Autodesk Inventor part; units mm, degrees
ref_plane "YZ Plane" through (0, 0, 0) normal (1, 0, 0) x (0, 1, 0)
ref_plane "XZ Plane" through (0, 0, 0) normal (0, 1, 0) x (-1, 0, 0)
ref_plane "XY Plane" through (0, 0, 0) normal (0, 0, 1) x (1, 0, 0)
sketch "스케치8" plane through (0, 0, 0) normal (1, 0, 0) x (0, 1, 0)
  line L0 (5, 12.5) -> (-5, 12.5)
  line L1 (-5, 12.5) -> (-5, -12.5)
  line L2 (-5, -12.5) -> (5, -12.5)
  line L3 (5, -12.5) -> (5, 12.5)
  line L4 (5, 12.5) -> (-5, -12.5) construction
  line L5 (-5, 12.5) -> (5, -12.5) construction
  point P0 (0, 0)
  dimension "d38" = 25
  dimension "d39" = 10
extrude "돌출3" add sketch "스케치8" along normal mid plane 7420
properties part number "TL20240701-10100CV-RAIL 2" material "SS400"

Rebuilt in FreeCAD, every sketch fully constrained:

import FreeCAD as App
import Part
import Sketcher


def add_polygon(sketch, points):
    """Adds a closed chain of lines whose ends are joined by coincident constraints."""
    first, n = sketch.GeometryCount, len(points)
    for a, b in zip(points, points[1:] + points[:1]):
        sketch.addGeometry(Part.LineSegment(App.Vector(*a, 0), App.Vector(*b, 0)), False)
    for i in range(n):
        sketch.addConstraint(Sketcher.Constraint("Coincident", first + i, 2, first + (i + 1) % n, 1))

doc = App.newDocument("Part")
params = doc.addObject("Spreadsheet::Sheet", "Params")
for row, (alias, value) in enumerate([
    ("sketch1_width", "10 mm"),
    ("sketch1_height", "25 mm"),
    ("pad1_length", "7420 mm"),
], start=1):
    params.set(f"A{row}", alias)
    params.set(f"B{row}", "=" + value)
    params.setAlias(f"B{row}", alias)

body = doc.addObject("PartDesign::Body", "Body")

# Sketch on YZ plane
sketch1 = doc.addObject("Sketcher::SketchObject", "Sketch")
body.addObject(sketch1)
sketch1.AttachmentSupport = (doc.YZ_Plane, [""])
sketch1.MapMode = "FlatFace"
add_polygon(sketch1, [(5, -12.5), (5, 12.5), (-5, 12.5), (-5, -12.5)])  # lines 0-3
sketch1.addConstraint(Sketcher.Constraint("Vertical", 0))
sketch1.addConstraint(Sketcher.Constraint("Horizontal", 1))
sketch1.addConstraint(Sketcher.Constraint("Vertical", 2))
sketch1.addConstraint(Sketcher.Constraint("Horizontal", 3))
sketch1.addConstraint(Sketcher.Constraint("Symmetric", 0, 2, 2, 2, -1, 1))
sketch1.addConstraint(Sketcher.Constraint("DistanceX", 1, 2, 1, 1, 10.0))
sketch1.addConstraint(Sketcher.Constraint("DistanceY", 0, 1, 0, 2, 25.0))
sketch1.setExpression("Constraints[9]", "Params.sketch1_width")
sketch1.setExpression("Constraints[10]", "Params.sketch1_height")
pad1 = doc.addObject("PartDesign::Pad", "Pad")
body.addObject(pad1)
pad1.Profile = sketch1
pad1.setExpression("Length", "Params.pad1_length")
pad1.Midplane = True

doc.recompute()
